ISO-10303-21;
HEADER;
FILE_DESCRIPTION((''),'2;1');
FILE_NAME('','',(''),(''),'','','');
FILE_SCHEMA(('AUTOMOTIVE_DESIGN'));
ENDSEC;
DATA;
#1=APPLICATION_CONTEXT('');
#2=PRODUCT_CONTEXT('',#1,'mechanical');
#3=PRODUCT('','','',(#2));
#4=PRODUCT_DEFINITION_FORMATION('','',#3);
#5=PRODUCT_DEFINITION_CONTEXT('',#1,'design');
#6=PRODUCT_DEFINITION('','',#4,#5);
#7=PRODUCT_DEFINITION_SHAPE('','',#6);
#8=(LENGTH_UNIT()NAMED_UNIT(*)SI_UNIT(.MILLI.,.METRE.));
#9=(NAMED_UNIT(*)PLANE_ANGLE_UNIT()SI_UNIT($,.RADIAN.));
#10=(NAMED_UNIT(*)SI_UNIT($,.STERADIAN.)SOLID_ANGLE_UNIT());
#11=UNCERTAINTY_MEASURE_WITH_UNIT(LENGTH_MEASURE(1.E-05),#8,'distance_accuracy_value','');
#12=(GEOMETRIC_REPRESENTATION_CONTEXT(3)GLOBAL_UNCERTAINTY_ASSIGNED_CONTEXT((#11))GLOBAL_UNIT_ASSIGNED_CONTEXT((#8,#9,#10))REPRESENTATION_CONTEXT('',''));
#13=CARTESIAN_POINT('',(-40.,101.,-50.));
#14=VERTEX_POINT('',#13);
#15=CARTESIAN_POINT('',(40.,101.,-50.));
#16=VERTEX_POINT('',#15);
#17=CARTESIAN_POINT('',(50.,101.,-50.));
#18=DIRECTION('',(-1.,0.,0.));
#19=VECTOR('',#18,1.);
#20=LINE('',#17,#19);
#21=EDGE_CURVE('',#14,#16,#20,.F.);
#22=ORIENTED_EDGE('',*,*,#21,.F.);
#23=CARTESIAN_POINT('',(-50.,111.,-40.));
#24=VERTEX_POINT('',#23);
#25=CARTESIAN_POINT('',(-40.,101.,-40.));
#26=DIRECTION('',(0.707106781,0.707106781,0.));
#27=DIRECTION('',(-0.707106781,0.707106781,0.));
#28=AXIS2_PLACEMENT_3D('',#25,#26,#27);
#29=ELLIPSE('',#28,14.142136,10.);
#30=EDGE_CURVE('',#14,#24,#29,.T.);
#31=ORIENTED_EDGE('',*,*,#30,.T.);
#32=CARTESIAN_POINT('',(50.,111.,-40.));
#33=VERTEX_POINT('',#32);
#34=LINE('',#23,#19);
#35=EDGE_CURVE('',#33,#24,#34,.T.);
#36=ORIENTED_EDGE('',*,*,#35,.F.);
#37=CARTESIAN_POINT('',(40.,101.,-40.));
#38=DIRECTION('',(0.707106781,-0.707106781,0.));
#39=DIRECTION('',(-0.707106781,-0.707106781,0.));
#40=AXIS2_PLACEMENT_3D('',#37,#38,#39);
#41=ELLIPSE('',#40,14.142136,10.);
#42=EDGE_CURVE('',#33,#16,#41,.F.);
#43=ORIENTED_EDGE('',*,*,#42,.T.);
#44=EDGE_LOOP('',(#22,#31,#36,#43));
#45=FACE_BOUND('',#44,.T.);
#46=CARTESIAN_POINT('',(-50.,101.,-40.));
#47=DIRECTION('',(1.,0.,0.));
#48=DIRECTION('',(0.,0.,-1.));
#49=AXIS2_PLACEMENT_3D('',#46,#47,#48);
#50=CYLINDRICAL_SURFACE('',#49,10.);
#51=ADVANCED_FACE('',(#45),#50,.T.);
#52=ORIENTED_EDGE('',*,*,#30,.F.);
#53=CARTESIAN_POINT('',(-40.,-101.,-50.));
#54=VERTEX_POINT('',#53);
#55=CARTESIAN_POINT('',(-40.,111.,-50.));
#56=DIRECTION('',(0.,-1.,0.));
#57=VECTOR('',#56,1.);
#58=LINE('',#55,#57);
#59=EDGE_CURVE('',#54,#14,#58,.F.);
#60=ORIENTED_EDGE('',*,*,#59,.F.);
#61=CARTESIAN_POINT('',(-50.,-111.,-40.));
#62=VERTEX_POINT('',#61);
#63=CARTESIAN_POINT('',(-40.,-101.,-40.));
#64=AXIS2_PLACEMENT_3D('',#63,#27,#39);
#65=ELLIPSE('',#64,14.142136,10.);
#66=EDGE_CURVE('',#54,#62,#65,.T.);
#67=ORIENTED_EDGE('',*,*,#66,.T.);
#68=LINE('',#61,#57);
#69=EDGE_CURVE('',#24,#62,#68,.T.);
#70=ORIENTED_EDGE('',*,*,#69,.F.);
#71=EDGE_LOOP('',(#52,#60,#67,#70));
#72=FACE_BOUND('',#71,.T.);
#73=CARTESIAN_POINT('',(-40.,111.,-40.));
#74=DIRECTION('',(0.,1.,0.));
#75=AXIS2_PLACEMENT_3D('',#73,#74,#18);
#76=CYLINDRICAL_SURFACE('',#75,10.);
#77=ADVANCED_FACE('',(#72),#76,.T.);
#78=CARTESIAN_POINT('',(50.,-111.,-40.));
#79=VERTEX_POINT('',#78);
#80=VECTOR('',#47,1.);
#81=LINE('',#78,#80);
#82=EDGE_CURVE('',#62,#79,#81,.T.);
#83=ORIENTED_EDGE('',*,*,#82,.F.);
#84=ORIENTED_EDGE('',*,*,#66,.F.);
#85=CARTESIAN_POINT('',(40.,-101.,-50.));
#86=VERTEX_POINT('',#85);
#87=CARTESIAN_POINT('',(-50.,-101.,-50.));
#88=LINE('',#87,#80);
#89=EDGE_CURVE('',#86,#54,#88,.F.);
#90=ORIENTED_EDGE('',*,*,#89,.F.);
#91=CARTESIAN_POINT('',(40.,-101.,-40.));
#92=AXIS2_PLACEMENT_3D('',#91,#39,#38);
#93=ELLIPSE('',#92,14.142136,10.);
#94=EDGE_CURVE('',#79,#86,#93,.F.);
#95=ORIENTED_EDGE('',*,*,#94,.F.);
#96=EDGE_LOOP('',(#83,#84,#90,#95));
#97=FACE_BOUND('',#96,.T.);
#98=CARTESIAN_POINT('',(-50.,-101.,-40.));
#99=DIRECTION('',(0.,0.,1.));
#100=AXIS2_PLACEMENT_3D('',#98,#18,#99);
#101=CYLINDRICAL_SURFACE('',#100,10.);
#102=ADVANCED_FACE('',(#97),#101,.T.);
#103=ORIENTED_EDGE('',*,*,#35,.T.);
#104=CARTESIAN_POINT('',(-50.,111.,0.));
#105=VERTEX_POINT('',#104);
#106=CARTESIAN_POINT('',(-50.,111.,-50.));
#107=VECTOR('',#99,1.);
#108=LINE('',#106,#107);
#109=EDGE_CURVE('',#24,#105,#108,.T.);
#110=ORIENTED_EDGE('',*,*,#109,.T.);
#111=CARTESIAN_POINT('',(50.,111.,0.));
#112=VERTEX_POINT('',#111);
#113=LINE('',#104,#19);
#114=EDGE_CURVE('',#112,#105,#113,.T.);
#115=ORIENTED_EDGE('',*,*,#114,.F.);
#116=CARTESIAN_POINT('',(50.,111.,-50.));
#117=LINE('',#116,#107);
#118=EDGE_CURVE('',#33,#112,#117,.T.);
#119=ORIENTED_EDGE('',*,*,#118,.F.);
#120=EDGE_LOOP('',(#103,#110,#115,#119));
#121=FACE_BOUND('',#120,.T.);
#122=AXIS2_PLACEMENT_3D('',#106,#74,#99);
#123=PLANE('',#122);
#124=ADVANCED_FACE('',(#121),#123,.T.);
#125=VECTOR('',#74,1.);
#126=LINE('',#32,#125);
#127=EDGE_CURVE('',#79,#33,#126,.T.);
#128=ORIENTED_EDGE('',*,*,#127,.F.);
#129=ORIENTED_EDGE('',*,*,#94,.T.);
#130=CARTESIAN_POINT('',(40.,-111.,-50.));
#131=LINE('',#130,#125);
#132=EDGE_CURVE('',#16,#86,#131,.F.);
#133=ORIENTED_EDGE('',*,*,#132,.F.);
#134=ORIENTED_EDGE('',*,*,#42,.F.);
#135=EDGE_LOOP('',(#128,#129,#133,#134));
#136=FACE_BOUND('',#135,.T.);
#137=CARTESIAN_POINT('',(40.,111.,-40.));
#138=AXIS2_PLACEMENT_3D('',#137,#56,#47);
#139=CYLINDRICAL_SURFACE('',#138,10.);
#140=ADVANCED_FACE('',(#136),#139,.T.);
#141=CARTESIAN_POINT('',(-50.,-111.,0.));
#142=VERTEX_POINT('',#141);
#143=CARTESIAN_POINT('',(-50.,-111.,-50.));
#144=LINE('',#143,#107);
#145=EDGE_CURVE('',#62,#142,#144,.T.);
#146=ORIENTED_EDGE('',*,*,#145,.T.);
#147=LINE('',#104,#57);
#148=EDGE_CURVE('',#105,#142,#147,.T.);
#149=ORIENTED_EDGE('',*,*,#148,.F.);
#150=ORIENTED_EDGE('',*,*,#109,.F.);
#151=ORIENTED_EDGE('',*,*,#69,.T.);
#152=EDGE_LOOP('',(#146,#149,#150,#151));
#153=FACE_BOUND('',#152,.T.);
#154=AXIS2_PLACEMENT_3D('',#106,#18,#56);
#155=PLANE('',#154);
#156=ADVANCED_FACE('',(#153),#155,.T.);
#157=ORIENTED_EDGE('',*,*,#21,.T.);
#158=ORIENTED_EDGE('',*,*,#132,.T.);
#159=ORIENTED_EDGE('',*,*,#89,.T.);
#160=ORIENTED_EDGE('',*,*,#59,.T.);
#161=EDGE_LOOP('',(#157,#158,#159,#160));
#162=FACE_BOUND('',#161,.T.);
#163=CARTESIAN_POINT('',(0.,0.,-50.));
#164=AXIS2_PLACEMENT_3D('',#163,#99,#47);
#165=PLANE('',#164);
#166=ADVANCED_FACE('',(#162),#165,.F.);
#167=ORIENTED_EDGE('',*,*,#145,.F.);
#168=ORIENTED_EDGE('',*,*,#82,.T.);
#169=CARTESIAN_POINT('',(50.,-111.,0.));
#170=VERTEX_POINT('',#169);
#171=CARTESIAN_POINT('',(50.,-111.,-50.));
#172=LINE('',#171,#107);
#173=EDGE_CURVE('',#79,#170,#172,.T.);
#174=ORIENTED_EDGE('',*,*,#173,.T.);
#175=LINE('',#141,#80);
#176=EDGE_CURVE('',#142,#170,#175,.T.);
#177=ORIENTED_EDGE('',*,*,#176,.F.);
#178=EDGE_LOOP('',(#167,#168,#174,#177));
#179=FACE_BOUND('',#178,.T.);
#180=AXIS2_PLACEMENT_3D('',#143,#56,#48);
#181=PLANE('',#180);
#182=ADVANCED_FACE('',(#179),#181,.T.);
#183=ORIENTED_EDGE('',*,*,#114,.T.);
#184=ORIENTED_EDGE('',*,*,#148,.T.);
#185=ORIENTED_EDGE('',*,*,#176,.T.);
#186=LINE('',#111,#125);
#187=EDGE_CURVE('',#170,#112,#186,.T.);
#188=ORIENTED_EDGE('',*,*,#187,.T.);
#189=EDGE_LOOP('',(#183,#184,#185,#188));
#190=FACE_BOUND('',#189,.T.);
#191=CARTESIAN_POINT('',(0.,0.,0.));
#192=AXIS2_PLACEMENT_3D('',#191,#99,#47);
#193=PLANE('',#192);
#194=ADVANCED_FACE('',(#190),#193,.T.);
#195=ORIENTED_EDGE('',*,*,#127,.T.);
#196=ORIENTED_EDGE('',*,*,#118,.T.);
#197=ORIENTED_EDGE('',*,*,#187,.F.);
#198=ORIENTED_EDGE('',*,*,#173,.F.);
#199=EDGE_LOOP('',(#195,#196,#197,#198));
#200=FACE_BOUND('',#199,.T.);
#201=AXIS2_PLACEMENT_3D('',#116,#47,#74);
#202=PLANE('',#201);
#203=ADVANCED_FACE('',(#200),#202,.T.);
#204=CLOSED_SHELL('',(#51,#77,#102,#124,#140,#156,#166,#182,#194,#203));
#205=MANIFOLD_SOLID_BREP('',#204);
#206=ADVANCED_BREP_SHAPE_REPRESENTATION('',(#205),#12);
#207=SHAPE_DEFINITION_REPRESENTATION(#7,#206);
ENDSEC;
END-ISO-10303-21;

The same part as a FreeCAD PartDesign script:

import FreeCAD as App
import Part
import Sketcher

V = App.Vector
Q = App.Units.Quantity


def edges_at(feature, points):
    """Names of the edges that pass closest to the given points."""
    edges = feature.Shape.Edges
    near = lambda p: min(range(len(edges)), key=lambda i: edges[i].distToShape(Part.Vertex(*p))[0])
    return sorted({f"Edge{near(p) + 1}" for p in points})

doc = App.newDocument("Part")
body = doc.addObject("PartDesign::Body", "Body")

# Sketch on XY plane
sketch1 = body.newObject("Sketcher::SketchObject", "Sketch")
sketch1.AttachmentSupport = (doc.getObject("XY_Plane"), [""])
sketch1.MapMode = "FlatFace"
sketch1.addGeometry(Part.LineSegment(V(-50, 111, 0), V(-50, -111, 0)), False)
sketch1.addGeometry(Part.LineSegment(V(-50, -111, 0), V(50, -111, 0)), False)
sketch1.addGeometry(Part.LineSegment(V(50, -111, 0), V(50, 111, 0)), False)
sketch1.addGeometry(Part.LineSegment(V(50, 111, 0), V(-50, 111, 0)), False)
sketch1.addConstraint(Sketcher.Constraint("Coincident", 0, 2, 1, 1))
sketch1.addConstraint(Sketcher.Constraint("Coincident", 1, 2, 2, 1))
sketch1.addConstraint(Sketcher.Constraint("Coincident", 2, 2, 3, 1))
sketch1.addConstraint(Sketcher.Constraint("Coincident", 3, 2, 0, 1))
sketch1.addConstraint(Sketcher.Constraint("Vertical", 0))
sketch1.addConstraint(Sketcher.Constraint("Horizontal", 1))
sketch1.addConstraint(Sketcher.Constraint("Vertical", 2))
sketch1.addConstraint(Sketcher.Constraint("Horizontal", 3))
sketch1.addConstraint(Sketcher.Constraint("Symmetric", 0, 2, 2, 2, -1, 1))
sketch1.addConstraint(Sketcher.Constraint("DistanceX", 1, 1, 1, 2, Q("100 mm")))
sketch1.addConstraint(Sketcher.Constraint("DistanceY", 0, 2, 0, 1, Q("222 mm")))
pad1 = body.newObject("PartDesign::Pad", "Pad")
pad1.Profile = sketch1
pad1.Length = 50
pad1.Reversed = True
doc.recompute()

fillet = body.newObject("PartDesign::Fillet", "Fillet")
fillet.Base = (pad1, edges_at(pad1, [
    (-50, 0, -50),
    (0, -111, -50),
    (50, 0, -50),
    (0, 111, -50),
]))
fillet.Radius = 10

doc.recompute()
